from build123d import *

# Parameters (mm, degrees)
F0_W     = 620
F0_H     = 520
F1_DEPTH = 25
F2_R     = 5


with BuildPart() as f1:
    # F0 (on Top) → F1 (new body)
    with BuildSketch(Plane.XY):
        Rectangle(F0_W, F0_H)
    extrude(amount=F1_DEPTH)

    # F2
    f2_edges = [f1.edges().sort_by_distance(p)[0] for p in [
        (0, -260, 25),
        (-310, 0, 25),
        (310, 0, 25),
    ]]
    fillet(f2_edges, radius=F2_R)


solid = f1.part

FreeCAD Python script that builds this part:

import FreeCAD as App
import Part
import Sketcher
from FreeCAD import Vector


def edges_at(feature, points):
    """Names of the edges that pass closest to the given points."""
    edges = feature.Shape.Edges
    near = lambda p: min(range(len(edges)), key=lambda i: edges[i].distToShape(Part.Vertex(*p))[0])
    return sorted({f"Edge{near(p) + 1}" for p in points})

doc = App.newDocument("Part")
body = doc.addObject("PartDesign::Body", "Body")

sketch1 = body.newObject("Sketcher::SketchObject", "Sketch")
sketch1.AttachmentSupport = (doc.getObject("XY_Plane"), [""])
sketch1.MapMode = "FlatFace"
sketch1.addGeometry(Part.LineSegment(Vector(-310, 260, 0), Vector(-310, -260, 0)), False)
sketch1.addGeometry(Part.LineSegment(Vector(-310, -260, 0), Vector(310, -260, 0)), False)
sketch1.addGeometry(Part.LineSegment(Vector(310, -260, 0), Vector(310, 260, 0)), False)
sketch1.addGeometry(Part.LineSegment(Vector(310, 260, 0), Vector(-310, 260, 0)), False)
sketch1.addConstraint(Sketcher.Constraint("Coincident", 0, 2, 1, 1))
sketch1.addConstraint(Sketcher.Constraint("Coincident", 1, 2, 2, 1))
sketch1.addConstraint(Sketcher.Constraint("Coincident", 2, 2, 3, 1))
sketch1.addConstraint(Sketcher.Constraint("Coincident", 3, 2, 0, 1))
sketch1.addConstraint(Sketcher.Constraint("Vertical", 0))
sketch1.addConstraint(Sketcher.Constraint("Horizontal", 1))
sketch1.addConstraint(Sketcher.Constraint("Vertical", 2))
sketch1.addConstraint(Sketcher.Constraint("Horizontal", 3))
sketch1.addConstraint(Sketcher.Constraint("Symmetric", 0, 2, 2, 2, -1, 1))
sketch1.addConstraint(Sketcher.Constraint("DistanceX", 1, 1, 1, 2, 620.0))
sketch1.addConstraint(Sketcher.Constraint("DistanceY", 0, 2, 0, 1, 520.0))
pad1 = body.newObject("PartDesign::Pad", "Pad")
pad1.Profile = sketch1
pad1.Length = 25
doc.recompute()

fillet = body.newObject("PartDesign::Fillet", "Fillet")
fillet.Base = (pad1, edges_at(pad1, [(0, -260, 25), (-310, 0, 25), (310, 0, 25)]))
fillet.Radius = 5

doc.recompute()
